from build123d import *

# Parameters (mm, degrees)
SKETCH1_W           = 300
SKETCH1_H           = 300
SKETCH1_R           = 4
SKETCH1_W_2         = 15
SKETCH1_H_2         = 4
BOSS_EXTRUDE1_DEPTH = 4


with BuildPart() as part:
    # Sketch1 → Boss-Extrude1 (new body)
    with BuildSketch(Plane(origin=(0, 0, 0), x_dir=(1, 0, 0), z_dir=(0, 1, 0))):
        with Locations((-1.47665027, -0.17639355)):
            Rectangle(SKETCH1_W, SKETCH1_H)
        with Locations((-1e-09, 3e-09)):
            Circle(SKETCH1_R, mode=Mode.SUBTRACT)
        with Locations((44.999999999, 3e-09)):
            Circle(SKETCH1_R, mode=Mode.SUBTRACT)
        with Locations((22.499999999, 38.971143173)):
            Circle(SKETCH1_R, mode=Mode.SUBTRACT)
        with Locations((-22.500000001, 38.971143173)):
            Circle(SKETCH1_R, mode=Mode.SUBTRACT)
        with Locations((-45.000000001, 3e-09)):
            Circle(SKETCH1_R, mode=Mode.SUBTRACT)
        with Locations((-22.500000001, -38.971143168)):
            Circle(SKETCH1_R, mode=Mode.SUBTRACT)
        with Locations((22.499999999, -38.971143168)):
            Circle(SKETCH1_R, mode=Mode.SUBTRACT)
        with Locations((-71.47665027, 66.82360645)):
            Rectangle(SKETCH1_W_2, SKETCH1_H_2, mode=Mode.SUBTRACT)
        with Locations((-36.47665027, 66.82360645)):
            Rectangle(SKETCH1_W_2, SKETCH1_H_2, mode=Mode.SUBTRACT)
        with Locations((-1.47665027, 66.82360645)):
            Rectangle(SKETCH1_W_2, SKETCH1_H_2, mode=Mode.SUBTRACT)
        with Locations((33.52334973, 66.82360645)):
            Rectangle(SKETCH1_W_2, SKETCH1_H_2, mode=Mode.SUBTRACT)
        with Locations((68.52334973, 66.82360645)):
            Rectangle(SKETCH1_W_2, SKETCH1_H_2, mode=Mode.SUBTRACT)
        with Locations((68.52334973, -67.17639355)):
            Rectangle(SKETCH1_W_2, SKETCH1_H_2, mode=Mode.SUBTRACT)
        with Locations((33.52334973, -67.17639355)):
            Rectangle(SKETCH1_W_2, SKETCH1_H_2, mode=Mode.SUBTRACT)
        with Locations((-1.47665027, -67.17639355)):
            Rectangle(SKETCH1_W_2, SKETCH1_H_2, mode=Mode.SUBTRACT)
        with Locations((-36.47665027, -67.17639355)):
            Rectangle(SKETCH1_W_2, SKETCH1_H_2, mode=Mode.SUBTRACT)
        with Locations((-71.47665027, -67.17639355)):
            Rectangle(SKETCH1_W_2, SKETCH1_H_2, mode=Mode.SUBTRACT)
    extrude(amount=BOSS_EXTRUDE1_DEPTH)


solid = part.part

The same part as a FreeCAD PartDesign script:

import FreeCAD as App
import Part
import Sketcher

V = App.Vector


def add_polygon(sketch, points):
    """Adds a closed chain of lines whose ends are joined by coincident constraints."""
    first, n = sketch.GeometryCount, len(points)
    for a, b in zip(points, points[1:] + points[:1]):
        sketch.addGeometry(Part.LineSegment(App.Vector(*a, 0), App.Vector(*b, 0)), False)
    for i in range(n):
        sketch.addConstraint(Sketcher.Constraint("Coincident", first + i, 2, first + (i + 1) % n, 1))

doc = App.newDocument("Part")
body = doc.addObject("PartDesign::Body", "Body")

# Sketch on XZ plane
sketch1 = body.newObject("Sketcher::SketchObject", "Sketch")
sketch1.AttachmentSupport = (doc.getObject("XZ_Plane"), [""])
sketch1.MapMode = "FlatFace"
add_polygon(sketch1, [(-151.5, -149.8), (-151.5, 150.2), (148.5, 150.2), (148.5, -149.8)])  # lines 0-3
add_polygon(sketch1, [(-64, 69.2), (-79, 69.2), (-79, 65.2), (-64, 65.2)])  # lines 4-7
add_polygon(sketch1, [(-29, 69.2), (-44, 69.2), (-44, 65.2), (-29, 65.2)])  # lines 8-11
sketch1.addGeometry(Part.Circle(V(-22.5, 39, 0), V(0, 0, 1), 4), False)  # 12
add_polygon(sketch1, [(6, 69.2), (-9, 69.2), (-9, 65.2), (6, 65.2)])  # lines 13-16
add_polygon(sketch1, [(41, 69.2), (26, 69.2), (26, 65.2), (41, 65.2)])  # lines 17-20
sketch1.addGeometry(Part.Circle(V(22.5, 39, 0), V(0, 0, 1), 4), False)  # 21
add_polygon(sketch1, [(76, 69.2), (61, 69.2), (61, 65.2), (76, 65.2)])  # lines 22-25
sketch1.addGeometry(Part.Circle(V(-45, 0, 0), V(0, 0, 1), 4), False)  # 26
add_polygon(sketch1, [(-64, -64.8), (-79, -64.8), (-79, -68.8), (-64, -68.8)])  # lines 27-30
sketch1.addGeometry(Part.Circle(V(-22.5, -39, 0), V(0, 0, 1), 4), False)  # 31
add_polygon(sketch1, [(-29, -64.8), (-44, -64.8), (-44, -68.8), (-29, -68.8)])  # lines 32-35
sketch1.addGeometry(Part.Circle(V(0, 0, 0), V(0, 0, 1), 4), False)  # 36
sketch1.addGeometry(Part.Circle(V(45, 0, 0), V(0, 0, 1), 4), False)  # 37
sketch1.addGeometry(Part.Circle(V(22.5, -39, 0), V(0, 0, 1), 4), False)  # 38
add_polygon(sketch1, [(6, -64.8), (-9, -64.8), (-9, -68.8), (6, -68.8)])  # lines 39-42
add_polygon(sketch1, [(41, -64.8), (26, -64.8), (26, -68.8), (41, -68.8)])  # lines 43-46
add_polygon(sketch1, [(76, -64.8), (61, -64.8), (61, -68.8), (76, -68.8)])  # lines 47-50
sketch1.addConstraint([
    Sketcher.Constraint("Vertical", 0),
    Sketcher.Constraint("Horizontal", 1),
    Sketcher.Constraint("Vertical", 2),
    Sketcher.Constraint("Horizontal", 3),
    Sketcher.Constraint("Horizontal", 4),
    Sketcher.Constraint("Vertical", 5),
    Sketcher.Constraint("Horizontal", 6),
    Sketcher.Constraint("Vertical", 7),
    Sketcher.Constraint("Horizontal", 8),
    Sketcher.Constraint("Vertical", 9),
    Sketcher.Constraint("Horizontal", 10),
    Sketcher.Constraint("Vertical", 11),
    Sketcher.Constraint("Horizontal", 13),
    Sketcher.Constraint("Vertical", 14),
    Sketcher.Constraint("Horizontal", 15),
    Sketcher.Constraint("Vertical", 16),
    Sketcher.Constraint("Horizontal", 17),
    Sketcher.Constraint("Vertical", 18),
    Sketcher.Constraint("Horizontal", 19),
    Sketcher.Constraint("Vertical", 20),
    Sketcher.Constraint("Horizontal", 22),
    Sketcher.Constraint("Vertical", 23),
    Sketcher.Constraint("Horizontal", 24),
    Sketcher.Constraint("Vertical", 25),
    Sketcher.Constraint("Horizontal", 27),
    Sketcher.Constraint("Vertical", 28),
    Sketcher.Constraint("Horizontal", 29),
    Sketcher.Constraint("Vertical", 30),
    Sketcher.Constraint("Horizontal", 32),
    Sketcher.Constraint("Vertical", 33),
    Sketcher.Constraint("Horizontal", 34),
    Sketcher.Constraint("Vertical", 35),
    Sketcher.Constraint("Horizontal", 39),
    Sketcher.Constraint("Vertical", 40),
    Sketcher.Constraint("Horizontal", 41),
    Sketcher.Constraint("Vertical", 42),
    Sketcher.Constraint("Horizontal", 43),
    Sketcher.Constraint("Vertical", 44),
    Sketcher.Constraint("Horizontal", 45),
    Sketcher.Constraint("Vertical", 46),
    Sketcher.Constraint("Horizontal", 47),
    Sketcher.Constraint("Vertical", 48),
    Sketcher.Constraint("Horizontal", 49),
    Sketcher.Constraint("Vertical", 50),
    Sketcher.Constraint("Coincident", 36, 3, -1, 1),
    Sketcher.Constraint("Equal", 12, 21),
    Sketcher.Constraint("Equal", 21, 26),
    Sketcher.Constraint("Equal", 26, 31),
    Sketcher.Constraint("Equal", 31, 36),
    Sketcher.Constraint("Equal", 36, 37),
    Sketcher.Constraint("Equal", 37, 38),
    Sketcher.Constraint("Symmetric", 21, 3, 31, 3, -1, 1),
    Sketcher.Constraint("Symmetric", 26, 3, 37, 3, -1, 1),
    Sketcher.Constraint("Symmetric", 12, 3, 38, 3, -1, 1),
    Sketcher.Constraint("Symmetric", 12, 3, 21, 3, -2),
    Sketcher.Constraint("PointOnObject", 26, 3, -1),
    Sketcher.Constraint("Horizontal", 7, 2, 8, 2),
    Sketcher.Constraint("Horizontal", 6, 2, 9, 2),
    Sketcher.Constraint("Horizontal", 11, 2, 13, 2),
    Sketcher.Constraint("Horizontal", 10, 2, 14, 2),
    Sketcher.Constraint("Horizontal", 16, 2, 17, 2),
    Sketcher.Constraint("Horizontal", 15, 2, 18, 2),
    Sketcher.Constraint("Horizontal", 20, 2, 22, 2),
    Sketcher.Constraint("Horizontal", 19, 2, 23, 2),
    Sketcher.Constraint("Horizontal", 30, 2, 32, 2),
    Sketcher.Constraint("Horizontal", 29, 2, 33, 2),
    Sketcher.Constraint("Horizontal", 35, 2, 39, 2),
    Sketcher.Constraint("Horizontal", 34, 2, 40, 2),
    Sketcher.Constraint("Horizontal", 42, 2, 43, 2),
    Sketcher.Constraint("Horizontal", 41, 2, 44, 2),
    Sketcher.Constraint("Horizontal", 46, 2, 47, 2),
    Sketcher.Constraint("Horizontal", 45, 2, 48, 2),
    Sketcher.Constraint("Vertical", 5, 2, 27, 2),
    Sketcher.Constraint("Vertical", 7, 2, 29, 2),
    Sketcher.Constraint("Vertical", 9, 2, 32, 2),
    Sketcher.Constraint("Vertical", 11, 2, 34, 2),
    Sketcher.Constraint("Vertical", 14, 2, 39, 2),
    Sketcher.Constraint("Vertical", 16, 2, 41, 2),
    Sketcher.Constraint("Vertical", 18, 2, 43, 2),
    Sketcher.Constraint("Vertical", 20, 2, 45, 2),
    Sketcher.Constraint("Vertical", 23, 2, 47, 2),
    Sketcher.Constraint("Vertical", 25, 2, 49, 2),
    Sketcher.Constraint("Equal", 6, 8),
    Sketcher.Constraint("Equal", 10, 13),
    Sketcher.Constraint("Equal", 15, 17),
    Sketcher.Constraint("Equal", 19, 22),
    Sketcher.Constraint("Equal", 3, 0),
    Sketcher.Constraint("Equal", 25, 28),
    Sketcher.Constraint("Diameter", 12, 8.0),
    Sketcher.Constraint("DistanceX", 1, 1, 1, 2, 300.0),
    Sketcher.Constraint("DistanceX", 4, 2, 4, 1, 15.0),
    Sketcher.Constraint("DistanceY", 5, 2, 5, 1, 4.0),
    Sketcher.Constraint("DistanceX", 26, 3, -1, 1, 45.0),
    Sketcher.Constraint("DistanceX", 12, 3, 21, 3, 45.0),
    Sketcher.Constraint("DistanceY", 4, 2, 0, 2, 81.0),
    Sketcher.Constraint("DistanceX", 7, 2, 8, 2, 20.0),
    Sketcher.Constraint("DistanceX", 11, 2, 13, 2, 20.0),
    Sketcher.Constraint("DistanceX", 16, 2, 17, 2, 20.0),
    Sketcher.Constraint("DistanceX", 20, 2, 22, 2, 20.0),
    Sketcher.Constraint("DistanceY", 3, 2, 27, 2, 85.0),
    Sketcher.Constraint("DistanceX", 0, 2, 4, 2, 72.5),
    Sketcher.Constraint("DistanceX", 0, 2, -1, 1, 151.47665),
    Sketcher.Constraint("DistanceY", 12, 3, 0, 2, 111.20525),
    Sketcher.Constraint("DistanceY", -1, 1, 12, 3, 38.971143),
])
pad1 = body.newObject("PartDesign::Pad", "Pad")
pad1.Profile = sketch1
pad1.Length = 4
pad1.Reversed = True

doc.recompute()
